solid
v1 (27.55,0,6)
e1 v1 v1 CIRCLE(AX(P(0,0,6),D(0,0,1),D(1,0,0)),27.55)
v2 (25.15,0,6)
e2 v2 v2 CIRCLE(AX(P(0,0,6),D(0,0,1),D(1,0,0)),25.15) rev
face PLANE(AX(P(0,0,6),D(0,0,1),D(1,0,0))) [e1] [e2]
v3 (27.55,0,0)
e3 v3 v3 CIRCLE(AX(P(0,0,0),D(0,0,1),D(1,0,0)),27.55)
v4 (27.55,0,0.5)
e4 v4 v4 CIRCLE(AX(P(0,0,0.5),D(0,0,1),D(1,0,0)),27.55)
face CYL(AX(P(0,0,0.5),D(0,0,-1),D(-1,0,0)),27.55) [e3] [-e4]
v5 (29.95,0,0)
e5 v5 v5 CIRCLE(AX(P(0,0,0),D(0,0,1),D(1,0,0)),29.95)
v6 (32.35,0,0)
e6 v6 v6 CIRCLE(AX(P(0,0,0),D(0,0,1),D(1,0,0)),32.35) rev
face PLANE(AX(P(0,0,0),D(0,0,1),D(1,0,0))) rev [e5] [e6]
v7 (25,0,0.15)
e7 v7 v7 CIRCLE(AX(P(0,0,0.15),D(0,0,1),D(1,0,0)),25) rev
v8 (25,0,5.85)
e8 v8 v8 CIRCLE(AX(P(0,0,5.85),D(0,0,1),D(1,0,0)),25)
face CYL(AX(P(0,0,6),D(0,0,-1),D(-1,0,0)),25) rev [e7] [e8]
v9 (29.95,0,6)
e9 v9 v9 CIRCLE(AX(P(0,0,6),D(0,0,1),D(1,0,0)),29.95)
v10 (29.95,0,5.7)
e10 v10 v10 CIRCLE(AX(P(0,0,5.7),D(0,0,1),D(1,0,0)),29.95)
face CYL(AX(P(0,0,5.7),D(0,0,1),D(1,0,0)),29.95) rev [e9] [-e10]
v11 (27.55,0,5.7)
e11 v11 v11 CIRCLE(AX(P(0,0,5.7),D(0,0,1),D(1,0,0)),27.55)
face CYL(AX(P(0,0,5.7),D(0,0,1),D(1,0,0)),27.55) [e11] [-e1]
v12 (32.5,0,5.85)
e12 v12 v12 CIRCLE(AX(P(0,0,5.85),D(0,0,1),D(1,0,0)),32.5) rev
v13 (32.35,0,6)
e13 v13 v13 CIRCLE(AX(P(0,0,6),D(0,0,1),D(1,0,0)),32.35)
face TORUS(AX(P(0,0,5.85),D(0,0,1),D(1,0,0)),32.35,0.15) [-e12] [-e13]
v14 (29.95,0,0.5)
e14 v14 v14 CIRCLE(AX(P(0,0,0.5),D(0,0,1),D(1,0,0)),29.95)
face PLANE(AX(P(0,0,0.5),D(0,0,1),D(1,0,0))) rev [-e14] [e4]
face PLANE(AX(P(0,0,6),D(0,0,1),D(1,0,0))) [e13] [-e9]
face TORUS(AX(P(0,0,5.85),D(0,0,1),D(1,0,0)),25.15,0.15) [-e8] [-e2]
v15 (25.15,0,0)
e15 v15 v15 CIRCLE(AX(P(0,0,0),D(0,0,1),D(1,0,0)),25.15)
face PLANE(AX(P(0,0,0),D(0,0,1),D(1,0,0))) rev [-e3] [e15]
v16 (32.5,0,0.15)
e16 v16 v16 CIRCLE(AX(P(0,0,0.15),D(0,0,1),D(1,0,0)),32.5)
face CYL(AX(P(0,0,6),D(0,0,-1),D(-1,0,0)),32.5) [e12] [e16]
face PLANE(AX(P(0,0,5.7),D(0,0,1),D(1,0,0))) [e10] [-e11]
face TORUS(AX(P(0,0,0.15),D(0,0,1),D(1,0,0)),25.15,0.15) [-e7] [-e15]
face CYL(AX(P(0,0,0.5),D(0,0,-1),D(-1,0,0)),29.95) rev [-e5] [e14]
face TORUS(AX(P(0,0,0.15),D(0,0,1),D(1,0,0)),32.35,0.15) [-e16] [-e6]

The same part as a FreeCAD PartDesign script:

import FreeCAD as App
import Part
import Sketcher
from FreeCAD import Vector
Q = App.Units.Quantity


def edges_at(feature, points):
    """Names of the edges that pass closest to the given points."""
    edges = feature.Shape.Edges
    near = lambda p: min(range(len(edges)), key=lambda i: edges[i].distToShape(Part.Vertex(*p))[0])
    return sorted({f"Edge{near(p) + 1}" for p in points})

doc = App.newDocument("Part")
body = doc.addObject("PartDesign::Body", "Body")

# Sketch on XY plane
sketch1 = body.newObject("Sketcher::SketchObject", "Sketch")
sketch1.AttachmentSupport = (doc.getObject("XY_Plane"), [""])
sketch1.MapMode = "FlatFace"
sketch1.addGeometry([
    Part.Circle(Vector(0, 0, 0), Vector(0, 0, 1), 32),
    Part.Circle(Vector(0, 0, 0), Vector(0, 0, 1), 25),
], False)
sketch1.addConstraint([
    Sketcher.Constraint("Coincident", 0, 3, -1, 1),
    Sketcher.Constraint("Coincident", 1, 3, -1, 1),
    Sketcher.Constraint("Diameter", 0, Q("65 mm")),
    Sketcher.Constraint("Diameter", 1, Q("50 mm")),
])
pad1 = body.newObject("PartDesign::Pad", "Pad")
pad1.Profile = sketch1
pad1.Length = 6

# Sketch on XY plane
sketch2 = body.newObject("Sketcher::SketchObject", "Sketch001")
sketch2.AttachmentSupport = (doc.getObject("XY_Plane"), [""])
sketch2.MapMode = "FlatFace"
sketch2.AttachmentOffset = App.Placement(Vector(0, 0, 6), App.Rotation())
sketch2.addGeometry([
    Part.Circle(Vector(0, 0, 0), Vector(0, 0, 1), 30),
    Part.Circle(Vector(0, 0, 0), Vector(0, 0, 1), 28),
], False)
sketch2.addConstraint([
    Sketcher.Constraint("Coincident", 0, 3, -1, 1),
    Sketcher.Constraint("Coincident", 1, 3, -1, 1),
    Sketcher.Constraint("Diameter", 0, Q("59.9 mm")),
    Sketcher.Constraint("Diameter", 1, Q("55.1 mm")),
])
pocket1 = body.newObject("PartDesign::Pocket", "Pocket")
pocket1.Profile = sketch2
pocket1.Length = 0.3

# Sketch on XY plane
sketch3 = body.newObject("Sketcher::SketchObject", "Sketch002")
sketch3.AttachmentSupport = (doc.getObject("XY_Plane"), [""])
sketch3.MapMode = "FlatFace"
sketch3.AttachmentOffset = App.Placement(Vector(0, 0, 0.5), App.Rotation())
sketch3.addGeometry([
    Part.Circle(Vector(0, 0, 0), Vector(0, 0, 1), 30),
    Part.Circle(Vector(0, 0, 0), Vector(0, 0, 1), 28),
], False)
sketch3.addConstraint([
    Sketcher.Constraint("Coincident", 0, 3, -1, 1),
    Sketcher.Constraint("Coincident", 1, 3, -1, 1),
    Sketcher.Constraint("Diameter", 0, Q("59.9 mm")),
    Sketcher.Constraint("Diameter", 1, Q("55.1 mm")),
])
pocket2 = body.newObject("PartDesign::Pocket", "Pocket001")
pocket2.Profile = sketch3
pocket2.Length = 0.5
doc.recompute()

fillet = body.newObject("PartDesign::Fillet", "Fillet")
fillet.Base = (pocket2, edges_at(pocket2, [
    (-32.5, 0, 0),
    (-32.5, 0, 6),
    (-25, 0, 0),
    (-25, 0, 6),
]))
fillet.Radius = 0.15

doc.recompute()
